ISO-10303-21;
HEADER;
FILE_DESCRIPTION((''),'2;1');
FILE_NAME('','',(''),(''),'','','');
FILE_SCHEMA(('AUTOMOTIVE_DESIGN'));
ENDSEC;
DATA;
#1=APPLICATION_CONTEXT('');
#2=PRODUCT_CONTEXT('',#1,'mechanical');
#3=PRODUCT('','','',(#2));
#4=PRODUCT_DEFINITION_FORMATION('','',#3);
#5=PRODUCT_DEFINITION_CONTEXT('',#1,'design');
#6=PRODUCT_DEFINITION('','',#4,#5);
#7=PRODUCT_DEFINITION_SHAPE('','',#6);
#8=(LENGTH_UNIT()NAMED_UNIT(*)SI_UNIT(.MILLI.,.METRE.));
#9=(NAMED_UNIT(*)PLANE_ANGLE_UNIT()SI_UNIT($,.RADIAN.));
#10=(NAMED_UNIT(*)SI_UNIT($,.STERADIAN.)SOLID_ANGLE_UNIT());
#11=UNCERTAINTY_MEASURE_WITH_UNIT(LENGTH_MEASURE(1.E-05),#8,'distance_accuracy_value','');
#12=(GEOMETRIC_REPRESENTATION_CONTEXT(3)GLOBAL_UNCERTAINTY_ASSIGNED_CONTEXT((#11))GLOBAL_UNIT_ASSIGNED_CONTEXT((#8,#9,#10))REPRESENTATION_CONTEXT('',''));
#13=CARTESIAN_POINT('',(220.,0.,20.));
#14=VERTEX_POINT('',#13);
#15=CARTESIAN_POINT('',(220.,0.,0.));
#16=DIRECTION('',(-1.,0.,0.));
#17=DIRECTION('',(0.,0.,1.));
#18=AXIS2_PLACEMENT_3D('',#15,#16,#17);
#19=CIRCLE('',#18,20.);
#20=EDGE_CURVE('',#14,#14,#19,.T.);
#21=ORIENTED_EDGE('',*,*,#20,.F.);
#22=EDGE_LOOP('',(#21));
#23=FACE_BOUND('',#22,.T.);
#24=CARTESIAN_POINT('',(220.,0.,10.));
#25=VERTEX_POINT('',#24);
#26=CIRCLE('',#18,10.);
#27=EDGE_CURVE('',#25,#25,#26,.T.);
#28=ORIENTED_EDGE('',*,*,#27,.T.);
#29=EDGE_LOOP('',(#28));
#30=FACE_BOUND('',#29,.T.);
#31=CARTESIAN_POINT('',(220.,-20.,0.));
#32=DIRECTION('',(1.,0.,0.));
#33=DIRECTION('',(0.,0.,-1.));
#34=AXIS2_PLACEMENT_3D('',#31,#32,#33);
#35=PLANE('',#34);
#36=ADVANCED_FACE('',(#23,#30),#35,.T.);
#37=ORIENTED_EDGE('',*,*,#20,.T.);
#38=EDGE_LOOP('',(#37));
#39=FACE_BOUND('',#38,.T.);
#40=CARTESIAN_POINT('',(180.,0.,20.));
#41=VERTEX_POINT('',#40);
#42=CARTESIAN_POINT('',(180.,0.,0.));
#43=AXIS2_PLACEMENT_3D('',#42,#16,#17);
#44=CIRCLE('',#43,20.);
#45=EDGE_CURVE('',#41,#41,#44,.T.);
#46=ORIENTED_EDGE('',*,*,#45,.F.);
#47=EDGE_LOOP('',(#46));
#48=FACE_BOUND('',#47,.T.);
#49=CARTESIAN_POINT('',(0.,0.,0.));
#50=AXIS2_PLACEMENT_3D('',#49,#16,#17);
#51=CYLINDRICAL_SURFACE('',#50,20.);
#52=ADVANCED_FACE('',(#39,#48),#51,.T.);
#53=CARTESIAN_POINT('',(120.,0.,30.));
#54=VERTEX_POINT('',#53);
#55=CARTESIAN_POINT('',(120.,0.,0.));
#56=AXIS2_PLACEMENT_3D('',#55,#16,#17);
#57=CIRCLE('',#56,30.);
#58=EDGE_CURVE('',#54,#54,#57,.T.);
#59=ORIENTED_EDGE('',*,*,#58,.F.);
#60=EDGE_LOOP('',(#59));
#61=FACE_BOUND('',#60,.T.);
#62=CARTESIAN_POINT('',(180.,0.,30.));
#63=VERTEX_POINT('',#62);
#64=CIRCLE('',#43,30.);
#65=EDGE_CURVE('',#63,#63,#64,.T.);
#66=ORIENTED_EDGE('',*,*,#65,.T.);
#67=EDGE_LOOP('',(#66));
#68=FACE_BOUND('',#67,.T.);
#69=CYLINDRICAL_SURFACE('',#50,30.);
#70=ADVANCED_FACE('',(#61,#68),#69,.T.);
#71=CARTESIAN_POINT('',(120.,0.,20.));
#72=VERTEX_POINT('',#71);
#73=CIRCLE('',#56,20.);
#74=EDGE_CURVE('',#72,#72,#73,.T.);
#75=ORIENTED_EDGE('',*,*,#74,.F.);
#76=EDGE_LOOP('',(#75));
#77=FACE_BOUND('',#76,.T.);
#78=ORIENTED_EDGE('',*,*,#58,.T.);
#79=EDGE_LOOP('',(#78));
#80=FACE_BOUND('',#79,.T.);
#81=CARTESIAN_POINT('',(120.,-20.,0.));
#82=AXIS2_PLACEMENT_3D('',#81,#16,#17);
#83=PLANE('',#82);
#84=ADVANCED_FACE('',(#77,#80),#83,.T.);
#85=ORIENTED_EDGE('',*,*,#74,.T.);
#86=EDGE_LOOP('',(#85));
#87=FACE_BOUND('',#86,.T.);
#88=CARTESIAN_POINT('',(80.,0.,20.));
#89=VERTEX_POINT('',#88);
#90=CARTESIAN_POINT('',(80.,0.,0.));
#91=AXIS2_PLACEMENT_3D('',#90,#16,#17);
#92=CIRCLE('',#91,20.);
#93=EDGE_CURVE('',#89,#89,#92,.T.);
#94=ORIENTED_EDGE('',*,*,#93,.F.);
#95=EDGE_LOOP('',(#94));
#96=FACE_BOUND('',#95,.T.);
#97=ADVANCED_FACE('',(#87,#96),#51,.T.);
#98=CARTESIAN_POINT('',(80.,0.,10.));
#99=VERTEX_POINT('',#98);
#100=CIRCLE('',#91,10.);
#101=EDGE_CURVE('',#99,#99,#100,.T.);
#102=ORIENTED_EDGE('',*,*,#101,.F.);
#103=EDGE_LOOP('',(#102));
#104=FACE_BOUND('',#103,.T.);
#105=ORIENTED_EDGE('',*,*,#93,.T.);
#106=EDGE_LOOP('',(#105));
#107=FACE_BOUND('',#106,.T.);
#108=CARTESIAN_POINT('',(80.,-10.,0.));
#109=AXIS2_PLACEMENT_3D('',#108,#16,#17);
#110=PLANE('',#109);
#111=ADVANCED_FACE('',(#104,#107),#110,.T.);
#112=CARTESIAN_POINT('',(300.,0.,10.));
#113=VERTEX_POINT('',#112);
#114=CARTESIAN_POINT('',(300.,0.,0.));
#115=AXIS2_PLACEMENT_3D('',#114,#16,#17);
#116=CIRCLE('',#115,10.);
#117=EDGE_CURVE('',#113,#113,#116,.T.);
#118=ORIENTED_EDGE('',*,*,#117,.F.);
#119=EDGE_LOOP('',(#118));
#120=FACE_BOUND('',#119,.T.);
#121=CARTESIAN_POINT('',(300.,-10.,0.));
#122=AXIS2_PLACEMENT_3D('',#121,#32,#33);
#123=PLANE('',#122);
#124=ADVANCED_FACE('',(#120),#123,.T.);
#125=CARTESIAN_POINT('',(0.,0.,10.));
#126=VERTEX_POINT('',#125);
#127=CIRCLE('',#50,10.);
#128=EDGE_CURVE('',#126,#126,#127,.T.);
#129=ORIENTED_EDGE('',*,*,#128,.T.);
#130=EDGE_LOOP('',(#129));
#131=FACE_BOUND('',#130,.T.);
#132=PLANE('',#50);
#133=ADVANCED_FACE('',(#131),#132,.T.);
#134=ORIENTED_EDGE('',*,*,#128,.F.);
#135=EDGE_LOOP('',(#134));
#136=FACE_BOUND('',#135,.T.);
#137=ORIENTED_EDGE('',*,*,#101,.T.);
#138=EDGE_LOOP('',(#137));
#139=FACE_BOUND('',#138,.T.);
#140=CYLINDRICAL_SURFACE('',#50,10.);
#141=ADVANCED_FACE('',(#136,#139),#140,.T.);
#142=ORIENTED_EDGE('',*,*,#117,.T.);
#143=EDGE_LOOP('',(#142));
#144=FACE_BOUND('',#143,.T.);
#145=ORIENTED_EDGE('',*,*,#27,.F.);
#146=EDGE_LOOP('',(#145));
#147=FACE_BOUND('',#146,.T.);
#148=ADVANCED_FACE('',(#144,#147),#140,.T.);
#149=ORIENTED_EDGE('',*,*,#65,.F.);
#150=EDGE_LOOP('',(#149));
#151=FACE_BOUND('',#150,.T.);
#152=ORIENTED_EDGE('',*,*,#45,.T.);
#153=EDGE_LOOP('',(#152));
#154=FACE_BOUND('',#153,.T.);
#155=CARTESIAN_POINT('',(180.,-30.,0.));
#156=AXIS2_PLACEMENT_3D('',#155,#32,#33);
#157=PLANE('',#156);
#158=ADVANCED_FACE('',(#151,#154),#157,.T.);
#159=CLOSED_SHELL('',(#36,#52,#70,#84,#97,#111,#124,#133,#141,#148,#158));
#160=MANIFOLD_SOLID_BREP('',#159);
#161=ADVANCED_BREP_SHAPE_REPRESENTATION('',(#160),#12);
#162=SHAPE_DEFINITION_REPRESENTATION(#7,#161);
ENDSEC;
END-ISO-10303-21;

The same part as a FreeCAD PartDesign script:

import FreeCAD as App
import Part
import Sketcher
from FreeCAD import Vector


def add_polygon(sketch, points):
    """Adds a closed chain of lines whose ends are joined by coincident constraints."""
    first, n = sketch.GeometryCount, len(points)
    for a, b in zip(points, points[1:] + points[:1]):
        sketch.addGeometry(Part.LineSegment(App.Vector(*a, 0), App.Vector(*b, 0)), False)
    for i in range(n):
        sketch.addConstraint(Sketcher.Constraint("Coincident", first + i, 2, first + (i + 1) % n, 1))

doc = App.newDocument("Part")
params = doc.addObject("Spreadsheet::Sheet", "Params")
for row, (alias, value) in enumerate([
    ("sketch1_width", "80 mm"),
    ("sketch1_width2", "40 mm"),
    ("sketch1_width3", "60 mm"),
    ("sketch1_height", "10 mm"),
    ("revolution_angle", "360 deg"),
], start=1):
    params.set(f"A{row}", alias)
    params.set(f"B{row}", "=" + value)
    params.setAlias(f"B{row}", alias)

body = doc.addObject("PartDesign::Body", "Body")

sketch1 = doc.addObject("Sketcher::SketchObject", "Sketch")
body.addObject(sketch1)
sketch1.AttachmentSupport = (doc.XY_Plane, [""])
sketch1.MapMode = "FlatFace"
add_polygon(sketch1, [(0, 0), (0, -10), (80, -10), (80, -20), (120, -20), (120, -30), (180, -30), (180, -20), (220, -20), (220, -10), (300, -10), (300, 0)])
sketch1.addConstraint(Sketcher.Constraint("Vertical", 0))
sketch1.addConstraint(Sketcher.Constraint("Horizontal", 1))
sketch1.addConstraint(Sketcher.Constraint("Vertical", 2))
sketch1.addConstraint(Sketcher.Constraint("Horizontal", 3))
sketch1.addConstraint(Sketcher.Constraint("Vertical", 4))
sketch1.addConstraint(Sketcher.Constraint("Horizontal", 5))
sketch1.addConstraint(Sketcher.Constraint("Vertical", 6))
sketch1.addConstraint(Sketcher.Constraint("Horizontal", 7))
sketch1.addConstraint(Sketcher.Constraint("Vertical", 8))
sketch1.addConstraint(Sketcher.Constraint("Horizontal", 9))
sketch1.addConstraint(Sketcher.Constraint("Vertical", 10))
sketch1.addConstraint(Sketcher.Constraint("Horizontal", 11))
sketch1.addConstraint(Sketcher.Constraint("Coincident", 11, 2, -1, 1))
sketch1.addConstraint(Sketcher.Constraint("Horizontal", 3, 2, 6, 2))
sketch1.addConstraint(Sketcher.Constraint("Horizontal", 1, 2, 8, 2))
sketch1.addConstraint(Sketcher.Constraint("Equal", 3, 7))
sketch1.addConstraint(Sketcher.Constraint("Equal", 1, 9))
sketch1.addConstraint(Sketcher.Constraint("Equal", 0, 2))
sketch1.addConstraint(Sketcher.Constraint("Equal", 2, 4))
sketch1.addConstraint(Sketcher.Constraint("DistanceX", 1, 1, 1, 2, 80.0))
sketch1.addConstraint(Sketcher.Constraint("DistanceX", 3, 1, 3, 2, 40.0))
sketch1.addConstraint(Sketcher.Constraint("DistanceX", 5, 1, 5, 2, 60.0))
sketch1.addConstraint(Sketcher.Constraint("DistanceY", 0, 2, 0, 1, 10.0))
sketch1.setExpression("Constraints[31]", "Params.sketch1_width")
sketch1.setExpression("Constraints[32]", "Params.sketch1_width2")
sketch1.setExpression("Constraints[33]", "Params.sketch1_width3")
sketch1.setExpression("Constraints[34]", "Params.sketch1_height")
revolution = doc.addObject("PartDesign::Revolution", "Revolution")
body.addObject(revolution)
revolution.Profile = sketch1
revolution.ReferenceAxis = (sketch1, ["H_Axis"])
revolution.setExpression("Angle", "Params.revolution_angle")

doc.recompute()
